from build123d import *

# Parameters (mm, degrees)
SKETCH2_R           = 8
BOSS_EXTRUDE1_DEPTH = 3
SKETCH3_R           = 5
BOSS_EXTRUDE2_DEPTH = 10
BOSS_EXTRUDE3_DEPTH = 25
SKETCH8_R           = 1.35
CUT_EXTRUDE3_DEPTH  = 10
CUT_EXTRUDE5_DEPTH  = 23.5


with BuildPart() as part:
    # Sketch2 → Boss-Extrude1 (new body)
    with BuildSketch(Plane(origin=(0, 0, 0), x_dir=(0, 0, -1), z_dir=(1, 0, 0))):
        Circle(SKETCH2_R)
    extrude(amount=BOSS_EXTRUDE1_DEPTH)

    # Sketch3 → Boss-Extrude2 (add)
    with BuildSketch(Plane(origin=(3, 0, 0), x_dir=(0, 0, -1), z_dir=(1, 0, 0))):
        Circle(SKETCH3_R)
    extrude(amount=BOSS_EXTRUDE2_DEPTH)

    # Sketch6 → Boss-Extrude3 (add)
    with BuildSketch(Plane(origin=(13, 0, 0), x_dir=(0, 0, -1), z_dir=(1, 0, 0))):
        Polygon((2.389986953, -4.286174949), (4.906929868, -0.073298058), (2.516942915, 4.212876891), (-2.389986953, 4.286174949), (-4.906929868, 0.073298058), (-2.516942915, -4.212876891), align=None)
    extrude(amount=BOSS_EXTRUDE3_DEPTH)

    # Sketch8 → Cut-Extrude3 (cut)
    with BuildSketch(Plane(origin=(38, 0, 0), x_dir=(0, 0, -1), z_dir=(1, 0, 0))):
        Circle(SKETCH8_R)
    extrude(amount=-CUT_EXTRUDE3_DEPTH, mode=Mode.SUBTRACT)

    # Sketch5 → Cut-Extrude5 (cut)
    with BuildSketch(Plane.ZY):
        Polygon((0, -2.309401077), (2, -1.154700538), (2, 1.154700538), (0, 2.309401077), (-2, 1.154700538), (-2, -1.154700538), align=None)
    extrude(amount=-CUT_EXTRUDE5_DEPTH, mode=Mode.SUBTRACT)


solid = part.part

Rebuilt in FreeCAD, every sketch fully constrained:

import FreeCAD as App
import Part
import Sketcher

V = App.Vector
Q = App.Units.Quantity


def add_polygon(sketch, points):
    """Adds a closed chain of lines whose ends are joined by coincident constraints."""
    first, n = sketch.GeometryCount, len(points)
    for a, b in zip(points, points[1:] + points[:1]):
        sketch.addGeometry(Part.LineSegment(App.Vector(*a, 0), App.Vector(*b, 0)), False)
    for i in range(n):
        sketch.addConstraint(Sketcher.Constraint("Coincident", first + i, 2, first + (i + 1) % n, 1))

doc = App.newDocument("Part")
body = doc.addObject("PartDesign::Body", "Body")

# Sketch on YZ plane
sketch1 = doc.addObject("Sketcher::SketchObject", "Sketch")
body.addObject(sketch1)
sketch1.AttachmentSupport = (doc.YZ_Plane, [""])
sketch1.MapMode = "FlatFace"
sketch1.addGeometry(Part.Circle(V(0, 0, 0), V(0, 0, 1), 8), False)
sketch1.addConstraint(Sketcher.Constraint("Coincident", 0, 3, -1, 1))
sketch1.addConstraint(Sketcher.Constraint("Diameter", 0, Q("16 mm")))
pad1 = doc.addObject("PartDesign::Pad", "Pad")
body.addObject(pad1)
pad1.Profile = sketch1
pad1.Length = 3

# Sketch on YZ plane
sketch2 = doc.addObject("Sketcher::SketchObject", "Sketch001")
body.addObject(sketch2)
sketch2.AttachmentSupport = (doc.YZ_Plane, [""])
sketch2.MapMode = "FlatFace"
sketch2.AttachmentOffset = App.Placement(V(0, 0, 3), App.Rotation())
sketch2.addGeometry(Part.Circle(V(0, 0, 0), V(0, 0, 1), 5), False)
sketch2.addConstraint(Sketcher.Constraint("Coincident", 0, 3, -1, 1))
sketch2.addConstraint(Sketcher.Constraint("Diameter", 0, Q("10 mm")))
pad2 = doc.addObject("PartDesign::Pad", "Pad001")
body.addObject(pad2)
pad2.Profile = sketch2
pad2.Length = 10

# Sketch on YZ plane
sketch3 = doc.addObject("Sketcher::SketchObject", "Sketch002")
body.addObject(sketch3)
sketch3.AttachmentSupport = (doc.YZ_Plane, [""])
sketch3.MapMode = "FlatFace"
sketch3.AttachmentOffset = App.Placement(V(0, 0, 13), App.Rotation())
add_polygon(sketch3, [(-4.286175, -2.389987), (-0.073298, -4.90693), (4.212877, -2.516943), (4.286175, 2.389987), (0.073298, 4.90693), (-4.212877, 2.516943)])  # lines 0-5
sketch3.addConstraint(Sketcher.Constraint("Symmetric", 0, 2, 3, 2, -1, 1))
sketch3.addConstraint(Sketcher.Constraint("Symmetric", 1, 2, 4, 2, -1, 1))
sketch3.addConstraint(Sketcher.Constraint("Symmetric", 2, 2, 5, 2, -1, 1))
sketch3.addConstraint(Sketcher.Constraint("Equal", 0, 1))
sketch3.addConstraint(Sketcher.Constraint("Equal", 1, 2))
sketch3.addConstraint(Sketcher.Constraint("DistanceX", 0, 2, -1, 1, Q("0.073298 mm")))
sketch3.addConstraint(Sketcher.Constraint("DistanceX", 1, 2, 2, 2, Q("0.073298 mm")))
sketch3.addConstraint(Sketcher.Constraint("DistanceY", 0, 2, -1, 1, Q("4.90693 mm")))
sketch3.addConstraint(Sketcher.Constraint("DistanceY", 1, 2, 2, 2, Q("4.90693 mm")))
pad3 = doc.addObject("PartDesign::Pad", "Pad002")
body.addObject(pad3)
pad3.Profile = sketch3
pad3.Length = 25

# Sketch on YZ plane
sketch4 = doc.addObject("Sketcher::SketchObject", "Sketch003")
body.addObject(sketch4)
sketch4.AttachmentSupport = (doc.YZ_Plane, [""])
sketch4.MapMode = "FlatFace"
sketch4.AttachmentOffset = App.Placement(V(0, 0, 38), App.Rotation())
sketch4.addGeometry(Part.Circle(V(0, 0, 0), V(0, 0, 1), 1.35), False)
sketch4.addConstraint(Sketcher.Constraint("Coincident", 0, 3, -1, 1))
sketch4.addConstraint(Sketcher.Constraint("Diameter", 0, Q("2.7 mm")))
pocket1 = doc.addObject("PartDesign::Pocket", "Pocket")
body.addObject(pocket1)
pocket1.Profile = sketch4
pocket1.Length = 10

# Sketch on YZ plane
sketch5 = doc.addObject("Sketcher::SketchObject", "Sketch004")
body.addObject(sketch5)
sketch5.AttachmentSupport = (doc.YZ_Plane, [""])
sketch5.MapMode = "FlatFace"
add_polygon(sketch5, [(-2.309401, 0), (-1.154701, 2), (1.154701, 2), (2.309401, 0), (1.154701, -2), (-1.154701, -2)])  # lines 0-5
sketch5.addConstraint(Sketcher.Constraint("Horizontal", 1))
sketch5.addConstraint(Sketcher.Constraint("Horizontal", 4))
sketch5.addConstraint(Sketcher.Constraint("Symmetric", 0, 2, 3, 2, -1, 1))
sketch5.addConstraint(Sketcher.Constraint("Symmetric", 2, 2, 5, 2, -1, 1))
sketch5.addConstraint(Sketcher.Constraint("PointOnObject", 2, 2, -1))
sketch5.addConstraint(Sketcher.Constraint("Parallel", 2, 5))
sketch5.addConstraint(Sketcher.Constraint("Vertical", 1, 2, 3, 2))
sketch5.addConstraint(Sketcher.Constraint("Angle", 0, Q("60 deg")))
sketch5.addConstraint(Sketcher.Constraint("DistanceY", -1, 1, 0, 2, Q("2 mm")))
sketch5.addConstraint(Sketcher.Constraint("DistanceX", 1, 1, 1, 2, Q("2.309401 mm")))
pocket2 = doc.addObject("PartDesign::Pocket", "Pocket001")
body.addObject(pocket2)
pocket2.Profile = sketch5
pocket2.Length = 23.5
pocket2.Reversed = True

doc.recompute()
